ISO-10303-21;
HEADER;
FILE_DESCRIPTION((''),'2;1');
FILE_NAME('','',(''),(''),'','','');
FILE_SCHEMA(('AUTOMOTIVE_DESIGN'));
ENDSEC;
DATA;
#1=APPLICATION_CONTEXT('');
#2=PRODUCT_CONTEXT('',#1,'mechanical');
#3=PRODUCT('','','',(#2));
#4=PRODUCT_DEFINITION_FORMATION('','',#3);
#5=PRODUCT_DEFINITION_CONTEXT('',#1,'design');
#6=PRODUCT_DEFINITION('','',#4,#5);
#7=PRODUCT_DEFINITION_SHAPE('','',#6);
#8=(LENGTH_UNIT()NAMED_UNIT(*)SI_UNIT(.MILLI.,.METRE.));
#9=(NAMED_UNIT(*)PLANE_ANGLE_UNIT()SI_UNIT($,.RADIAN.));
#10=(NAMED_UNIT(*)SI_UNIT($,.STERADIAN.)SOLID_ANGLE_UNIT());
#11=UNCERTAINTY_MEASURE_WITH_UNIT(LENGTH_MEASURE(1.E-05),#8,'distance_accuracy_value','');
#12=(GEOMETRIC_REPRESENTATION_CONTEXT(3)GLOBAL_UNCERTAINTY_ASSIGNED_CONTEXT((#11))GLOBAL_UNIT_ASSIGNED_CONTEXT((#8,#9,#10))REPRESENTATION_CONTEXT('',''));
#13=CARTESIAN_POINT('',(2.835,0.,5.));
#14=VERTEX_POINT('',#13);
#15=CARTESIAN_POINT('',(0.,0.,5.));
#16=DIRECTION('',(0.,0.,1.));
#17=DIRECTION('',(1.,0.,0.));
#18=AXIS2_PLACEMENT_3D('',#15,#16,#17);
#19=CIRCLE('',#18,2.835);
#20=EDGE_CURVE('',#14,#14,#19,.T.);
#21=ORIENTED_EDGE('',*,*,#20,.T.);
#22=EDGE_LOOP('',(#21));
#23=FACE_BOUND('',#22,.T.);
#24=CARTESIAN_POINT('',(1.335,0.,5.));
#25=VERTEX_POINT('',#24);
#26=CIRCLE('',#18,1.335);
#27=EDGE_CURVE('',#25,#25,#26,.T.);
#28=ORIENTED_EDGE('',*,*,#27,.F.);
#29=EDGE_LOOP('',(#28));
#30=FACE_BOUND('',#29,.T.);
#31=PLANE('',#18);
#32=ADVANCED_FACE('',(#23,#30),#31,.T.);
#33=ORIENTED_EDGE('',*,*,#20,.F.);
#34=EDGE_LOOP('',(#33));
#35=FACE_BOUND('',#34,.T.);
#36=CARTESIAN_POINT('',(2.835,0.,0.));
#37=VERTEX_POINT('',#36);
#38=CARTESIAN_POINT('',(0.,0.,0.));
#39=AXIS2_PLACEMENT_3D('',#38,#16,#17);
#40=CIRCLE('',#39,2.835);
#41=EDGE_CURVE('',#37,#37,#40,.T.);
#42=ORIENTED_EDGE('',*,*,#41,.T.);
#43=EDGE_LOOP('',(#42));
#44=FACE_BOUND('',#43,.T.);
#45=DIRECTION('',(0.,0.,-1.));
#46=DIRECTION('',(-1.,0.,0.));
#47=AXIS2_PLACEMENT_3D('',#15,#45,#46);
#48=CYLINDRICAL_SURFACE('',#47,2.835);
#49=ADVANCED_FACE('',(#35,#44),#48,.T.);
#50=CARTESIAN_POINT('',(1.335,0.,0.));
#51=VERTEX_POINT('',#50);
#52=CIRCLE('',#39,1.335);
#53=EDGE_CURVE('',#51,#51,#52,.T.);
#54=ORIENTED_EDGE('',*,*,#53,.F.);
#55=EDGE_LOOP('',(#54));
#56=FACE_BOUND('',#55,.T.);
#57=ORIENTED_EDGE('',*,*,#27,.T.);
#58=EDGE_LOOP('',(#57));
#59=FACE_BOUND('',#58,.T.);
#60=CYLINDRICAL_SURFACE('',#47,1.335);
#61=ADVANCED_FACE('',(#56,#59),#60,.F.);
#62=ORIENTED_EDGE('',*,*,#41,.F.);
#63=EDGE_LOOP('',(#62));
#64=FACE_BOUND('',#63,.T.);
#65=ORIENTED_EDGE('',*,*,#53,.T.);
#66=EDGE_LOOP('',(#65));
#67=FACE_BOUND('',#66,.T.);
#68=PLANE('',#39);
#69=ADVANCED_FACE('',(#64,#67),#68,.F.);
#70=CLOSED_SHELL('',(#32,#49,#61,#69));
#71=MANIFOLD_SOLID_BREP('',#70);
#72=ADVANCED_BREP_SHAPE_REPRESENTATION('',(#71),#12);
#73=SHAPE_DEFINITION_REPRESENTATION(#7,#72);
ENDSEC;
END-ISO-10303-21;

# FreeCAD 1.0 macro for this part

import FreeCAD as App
import Part
import Sketcher

V = App.Vector
Q = App.Units.Quantity

doc = App.newDocument("Part")
body = doc.addObject("PartDesign::Body", "Body")

sketch1 = body.newObject("Sketcher::SketchObject", "Sketch")
sketch1.AttachmentSupport = (doc.getObject("XY_Plane"), [""])
sketch1.MapMode = "FlatFace"
sketch1.addGeometry([
    Part.Circle(V(0, 0, 0), V(0, 0, 1), 2.835),
    Part.Circle(V(0, 0, 0), V(0, 0, 1), 1.335),
], False)
sketch1.addConstraint([
    Sketcher.Constraint("Coincident", 0, 3, -1, 1),
    Sketcher.Constraint("Coincident", 1, 3, -1, 1),
    Sketcher.Constraint("Diameter", 0, Q("5.67 mm")),
    Sketcher.Constraint("Diameter", 1, Q("2.67 mm")),
])
pad1 = body.newObject("PartDesign::Pad", "Pad")
pad1.Profile = sketch1
pad1.Length = 5

doc.recompute()
